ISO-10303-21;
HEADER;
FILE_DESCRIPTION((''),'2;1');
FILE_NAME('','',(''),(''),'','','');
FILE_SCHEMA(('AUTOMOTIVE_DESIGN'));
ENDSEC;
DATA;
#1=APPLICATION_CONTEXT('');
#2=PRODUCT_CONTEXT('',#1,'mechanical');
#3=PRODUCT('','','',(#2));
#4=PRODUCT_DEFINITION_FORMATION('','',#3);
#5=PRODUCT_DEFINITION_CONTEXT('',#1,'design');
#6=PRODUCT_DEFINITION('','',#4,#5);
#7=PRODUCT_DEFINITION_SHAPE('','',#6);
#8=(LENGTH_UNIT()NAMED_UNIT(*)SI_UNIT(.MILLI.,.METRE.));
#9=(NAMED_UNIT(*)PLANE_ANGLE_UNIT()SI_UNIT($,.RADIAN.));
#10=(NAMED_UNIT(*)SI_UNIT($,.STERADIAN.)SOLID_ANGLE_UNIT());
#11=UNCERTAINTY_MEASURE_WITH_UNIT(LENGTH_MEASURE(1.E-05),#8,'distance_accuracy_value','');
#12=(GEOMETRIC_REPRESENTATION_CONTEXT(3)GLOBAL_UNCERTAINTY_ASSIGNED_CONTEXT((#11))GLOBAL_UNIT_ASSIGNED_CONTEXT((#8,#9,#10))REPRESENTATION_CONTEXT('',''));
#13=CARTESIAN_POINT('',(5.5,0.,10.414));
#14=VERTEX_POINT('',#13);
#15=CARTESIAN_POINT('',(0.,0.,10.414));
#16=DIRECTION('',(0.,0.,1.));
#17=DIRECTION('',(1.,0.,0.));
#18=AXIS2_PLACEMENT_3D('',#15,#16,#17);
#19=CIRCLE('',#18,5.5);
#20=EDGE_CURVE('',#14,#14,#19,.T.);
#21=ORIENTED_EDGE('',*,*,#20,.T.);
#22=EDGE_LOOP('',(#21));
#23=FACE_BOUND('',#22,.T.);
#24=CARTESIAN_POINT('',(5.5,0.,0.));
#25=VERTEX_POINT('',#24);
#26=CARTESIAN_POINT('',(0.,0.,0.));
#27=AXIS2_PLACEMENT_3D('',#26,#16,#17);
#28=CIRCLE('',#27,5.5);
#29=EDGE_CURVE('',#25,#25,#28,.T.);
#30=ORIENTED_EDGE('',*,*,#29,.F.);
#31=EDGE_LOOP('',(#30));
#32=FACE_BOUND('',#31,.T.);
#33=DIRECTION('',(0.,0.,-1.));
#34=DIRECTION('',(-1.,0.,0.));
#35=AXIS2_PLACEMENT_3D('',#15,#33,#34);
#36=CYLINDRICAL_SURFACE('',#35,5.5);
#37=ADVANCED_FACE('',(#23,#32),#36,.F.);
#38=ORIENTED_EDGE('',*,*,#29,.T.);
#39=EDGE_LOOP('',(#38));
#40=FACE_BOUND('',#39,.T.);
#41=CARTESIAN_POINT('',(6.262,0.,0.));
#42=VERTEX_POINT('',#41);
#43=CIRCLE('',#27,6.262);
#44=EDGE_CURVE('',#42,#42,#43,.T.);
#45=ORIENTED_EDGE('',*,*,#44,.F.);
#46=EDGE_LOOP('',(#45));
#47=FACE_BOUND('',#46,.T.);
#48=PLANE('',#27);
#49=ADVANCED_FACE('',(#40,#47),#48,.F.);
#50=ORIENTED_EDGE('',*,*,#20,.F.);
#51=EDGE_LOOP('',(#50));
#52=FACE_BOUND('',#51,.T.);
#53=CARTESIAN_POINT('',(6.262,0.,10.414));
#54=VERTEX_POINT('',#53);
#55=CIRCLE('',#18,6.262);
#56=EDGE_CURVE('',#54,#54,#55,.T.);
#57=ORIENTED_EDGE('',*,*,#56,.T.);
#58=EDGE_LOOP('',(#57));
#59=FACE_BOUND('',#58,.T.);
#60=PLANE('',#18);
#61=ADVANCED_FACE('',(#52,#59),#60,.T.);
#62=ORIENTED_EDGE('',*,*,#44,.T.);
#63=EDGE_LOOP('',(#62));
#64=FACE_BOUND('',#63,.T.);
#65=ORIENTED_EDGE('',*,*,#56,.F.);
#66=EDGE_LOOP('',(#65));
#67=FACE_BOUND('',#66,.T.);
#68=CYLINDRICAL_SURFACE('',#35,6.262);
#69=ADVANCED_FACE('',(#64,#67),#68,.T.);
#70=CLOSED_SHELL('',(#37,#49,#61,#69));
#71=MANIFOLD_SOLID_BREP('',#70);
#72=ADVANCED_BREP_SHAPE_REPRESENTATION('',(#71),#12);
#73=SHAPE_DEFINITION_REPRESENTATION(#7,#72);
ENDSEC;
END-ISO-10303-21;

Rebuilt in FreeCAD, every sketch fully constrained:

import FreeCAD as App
import Part
import Sketcher
Q = App.Units.Quantity

doc = App.newDocument("Part")
body = doc.addObject("PartDesign::Body", "Body")

# Sketch on XY plane
sketch1 = body.newObject("Sketcher::SketchObject", "Sketch")
sketch1.AttachmentSupport = (doc.getObject("XY_Plane"), [""])
sketch1.MapMode = "FlatFace"
sketch1.addGeometry([
    Part.Circle(App.Vector(0, 0, 0), App.Vector(0, 0, 1), 6),
    Part.Circle(App.Vector(0, 0, 0), App.Vector(0, 0, 1), 6),
], False)
sketch1.addConstraint([
    Sketcher.Constraint("Coincident", 0, 3, -1, 1),
    Sketcher.Constraint("Coincident", 1, 3, -1, 1),
    Sketcher.Constraint("Diameter", 1, Q("11 mm")),
    Sketcher.Constraint("Diameter", 0, Q("12.524 mm")),
])
pad1 = body.newObject("PartDesign::Pad", "Pad")
pad1.Profile = sketch1
pad1.Length = 10.414

doc.recompute()
